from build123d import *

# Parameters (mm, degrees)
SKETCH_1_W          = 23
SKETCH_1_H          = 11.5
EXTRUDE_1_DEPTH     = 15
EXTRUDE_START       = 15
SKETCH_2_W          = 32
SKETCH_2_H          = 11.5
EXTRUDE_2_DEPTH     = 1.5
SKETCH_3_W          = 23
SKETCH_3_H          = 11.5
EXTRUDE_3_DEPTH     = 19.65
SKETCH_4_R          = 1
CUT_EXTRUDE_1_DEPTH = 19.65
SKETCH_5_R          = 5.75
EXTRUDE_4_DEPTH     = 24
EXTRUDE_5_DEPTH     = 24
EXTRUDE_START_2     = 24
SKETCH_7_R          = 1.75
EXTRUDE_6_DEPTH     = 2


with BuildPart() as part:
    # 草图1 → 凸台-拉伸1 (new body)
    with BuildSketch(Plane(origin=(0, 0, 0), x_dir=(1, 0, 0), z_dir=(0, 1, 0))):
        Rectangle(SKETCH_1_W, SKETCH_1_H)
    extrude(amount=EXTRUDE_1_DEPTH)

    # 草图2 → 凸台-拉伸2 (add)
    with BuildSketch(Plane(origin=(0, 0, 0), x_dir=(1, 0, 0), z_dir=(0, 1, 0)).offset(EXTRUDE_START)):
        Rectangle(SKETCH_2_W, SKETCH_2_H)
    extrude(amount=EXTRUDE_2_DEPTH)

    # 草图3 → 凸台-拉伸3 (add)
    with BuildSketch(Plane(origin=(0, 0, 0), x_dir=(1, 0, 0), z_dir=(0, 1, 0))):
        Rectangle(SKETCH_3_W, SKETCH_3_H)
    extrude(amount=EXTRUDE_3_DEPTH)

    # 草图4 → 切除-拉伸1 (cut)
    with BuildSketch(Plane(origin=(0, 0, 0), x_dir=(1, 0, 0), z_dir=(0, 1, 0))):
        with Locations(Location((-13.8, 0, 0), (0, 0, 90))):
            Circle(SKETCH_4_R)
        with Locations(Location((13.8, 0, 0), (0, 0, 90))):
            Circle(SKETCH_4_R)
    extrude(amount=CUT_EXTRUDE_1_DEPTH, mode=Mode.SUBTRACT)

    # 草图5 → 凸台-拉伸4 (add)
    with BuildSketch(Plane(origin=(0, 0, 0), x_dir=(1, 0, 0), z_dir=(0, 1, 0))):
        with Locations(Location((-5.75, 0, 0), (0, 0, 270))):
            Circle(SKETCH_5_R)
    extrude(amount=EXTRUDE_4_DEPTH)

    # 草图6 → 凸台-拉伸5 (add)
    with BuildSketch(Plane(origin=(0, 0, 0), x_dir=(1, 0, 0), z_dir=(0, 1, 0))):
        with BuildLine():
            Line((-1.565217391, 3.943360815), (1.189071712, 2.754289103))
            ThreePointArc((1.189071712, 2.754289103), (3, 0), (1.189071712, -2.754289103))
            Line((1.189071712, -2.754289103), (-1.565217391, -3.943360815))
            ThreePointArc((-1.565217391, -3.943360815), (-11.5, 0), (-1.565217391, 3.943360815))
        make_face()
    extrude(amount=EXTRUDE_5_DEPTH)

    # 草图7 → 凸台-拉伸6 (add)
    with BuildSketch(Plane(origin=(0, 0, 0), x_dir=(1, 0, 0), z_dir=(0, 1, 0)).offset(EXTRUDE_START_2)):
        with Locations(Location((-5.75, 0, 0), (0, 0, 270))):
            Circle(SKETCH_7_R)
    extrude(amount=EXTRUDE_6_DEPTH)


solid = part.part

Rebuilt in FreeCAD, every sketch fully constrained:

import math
import FreeCAD as App
import Part
import Sketcher
from FreeCAD import Vector

doc = App.newDocument("Part")
body = doc.addObject("PartDesign::Body", "Body")

# Sketch on XZ plane
sketch1 = body.newObject("Sketcher::SketchObject", "Sketch")
sketch1.AttachmentSupport = (doc.getObject("XZ_Plane"), [""])
sketch1.MapMode = "FlatFace"
sketch1.addGeometry([
    Part.LineSegment(Vector(-11.5, -5.75, 0), Vector(-11.5, 5.75, 0)),
    Part.LineSegment(Vector(-11.5, 5.75, 0), Vector(11.5, 5.75, 0)),
    Part.LineSegment(Vector(11.5, 5.75, 0), Vector(11.5, -5.75, 0)),
    Part.LineSegment(Vector(11.5, -5.75, 0), Vector(-11.5, -5.75, 0)),
], False)
sketch1.addConstraint([
    Sketcher.Constraint("Coincident", 0, 2, 1, 1),
    Sketcher.Constraint("Coincident", 1, 2, 2, 1),
    Sketcher.Constraint("Coincident", 2, 2, 3, 1),
    Sketcher.Constraint("Coincident", 3, 2, 0, 1),
    Sketcher.Constraint("Vertical", 0),
    Sketcher.Constraint("Horizontal", 1),
    Sketcher.Constraint("Vertical", 2),
    Sketcher.Constraint("Horizontal", 3),
    Sketcher.Constraint("Symmetric", 0, 2, 2, 2, -1, 1),
    Sketcher.Constraint("DistanceX", 1, 1, 1, 2, 23.0),
    Sketcher.Constraint("DistanceY", 0, 1, 0, 2, 11.5),
])
pad1 = body.newObject("PartDesign::Pad", "Pad")
pad1.Profile = sketch1
pad1.Length = 15
pad1.Reversed = True

# Sketch on XZ plane
sketch2 = body.newObject("Sketcher::SketchObject", "Sketch001")
sketch2.AttachmentSupport = (doc.getObject("XZ_Plane"), [""])
sketch2.MapMode = "FlatFace"
sketch2.AttachmentOffset = App.Placement(Vector(0, 0, -15), App.Rotation())
sketch2.addGeometry([
    Part.LineSegment(Vector(-16, -5.75, 0), Vector(-16, 5.75, 0)),
    Part.LineSegment(Vector(-16, 5.75, 0), Vector(16, 5.75, 0)),
    Part.LineSegment(Vector(16, 5.75, 0), Vector(16, -5.75, 0)),
    Part.LineSegment(Vector(16, -5.75, 0), Vector(-16, -5.75, 0)),
], False)
sketch2.addConstraint([
    Sketcher.Constraint("Coincident", 0, 2, 1, 1),
    Sketcher.Constraint("Coincident", 1, 2, 2, 1),
    Sketcher.Constraint("Coincident", 2, 2, 3, 1),
    Sketcher.Constraint("Coincident", 3, 2, 0, 1),
    Sketcher.Constraint("Vertical", 0),
    Sketcher.Constraint("Horizontal", 1),
    Sketcher.Constraint("Vertical", 2),
    Sketcher.Constraint("Horizontal", 3),
    Sketcher.Constraint("Symmetric", 0, 2, 2, 2, -1, 1),
    Sketcher.Constraint("DistanceX", 1, 1, 1, 2, 32.0),
    Sketcher.Constraint("DistanceY", 0, 1, 0, 2, 11.5),
])
pad2 = body.newObject("PartDesign::Pad", "Pad001")
pad2.Profile = sketch2
pad2.Length = 1.5
pad2.Reversed = True

# Sketch on XZ plane
sketch3 = body.newObject("Sketcher::SketchObject", "Sketch002")
sketch3.AttachmentSupport = (doc.getObject("XZ_Plane"), [""])
sketch3.MapMode = "FlatFace"
sketch3.addGeometry([
    Part.LineSegment(Vector(-11.5, -5.75, 0), Vector(-11.5, 5.75, 0)),
    Part.LineSegment(Vector(-11.5, 5.75, 0), Vector(11.5, 5.75, 0)),
    Part.LineSegment(Vector(11.5, 5.75, 0), Vector(11.5, -5.75, 0)),
    Part.LineSegment(Vector(11.5, -5.75, 0), Vector(-11.5, -5.75, 0)),
], False)
sketch3.addConstraint([
    Sketcher.Constraint("Coincident", 0, 2, 1, 1),
    Sketcher.Constraint("Coincident", 1, 2, 2, 1),
    Sketcher.Constraint("Coincident", 2, 2, 3, 1),
    Sketcher.Constraint("Coincident", 3, 2, 0, 1),
    Sketcher.Constraint("Vertical", 0),
    Sketcher.Constraint("Horizontal", 1),
    Sketcher.Constraint("Vertical", 2),
    Sketcher.Constraint("Horizontal", 3),
    Sketcher.Constraint("Symmetric", 0, 2, 2, 2, -1, 1),
    Sketcher.Constraint("DistanceX", 1, 1, 1, 2, 23.0),
    Sketcher.Constraint("DistanceY", 0, 1, 0, 2, 11.5),
])
pad3 = body.newObject("PartDesign::Pad", "Pad002")
pad3.Profile = sketch3
pad3.Length = 19.65
pad3.Reversed = True

# Sketch on XZ plane
sketch4 = body.newObject("Sketcher::SketchObject", "Sketch003")
sketch4.AttachmentSupport = (doc.getObject("XZ_Plane"), [""])
sketch4.MapMode = "FlatFace"
sketch4.addGeometry([
    Part.Circle(Vector(-13.8, 0, 0), Vector(0, 0, 1), 1),
    Part.Circle(Vector(13.8, 0, 0), Vector(0, 0, 1), 1),
], False)
sketch4.addConstraint([
    Sketcher.Constraint("Equal", 0, 1),
    Sketcher.Constraint("Symmetric", 0, 3, 1, 3, -1, 1),
    Sketcher.Constraint("PointOnObject", 0, 3, -1),
    Sketcher.Constraint("Diameter", 0, 2.0),
    Sketcher.Constraint("DistanceX", 0, 3, -1, 1, 13.8),
])
pocket1 = body.newObject("PartDesign::Pocket", "Pocket")
pocket1.Profile = sketch4
pocket1.Length = 19.65

# Sketch on XZ plane
sketch5 = body.newObject("Sketcher::SketchObject", "Sketch004")
sketch5.AttachmentSupport = (doc.getObject("XZ_Plane"), [""])
sketch5.MapMode = "FlatFace"
sketch5.addGeometry(Part.Circle(Vector(-5.75, 0, 0), Vector(0, 0, 1), 5.75), False)
sketch5.addConstraint([
    Sketcher.Constraint("PointOnObject", 0, 3, -1),
    Sketcher.Constraint("Diameter", 0, 11.5),
    Sketcher.Constraint("DistanceX", 0, 3, -1, 1, 5.75),
])
pad4 = body.newObject("PartDesign::Pad", "Pad003")
pad4.Profile = sketch5
pad4.Length = 24
pad4.Reversed = True

# Sketch on XZ plane
sketch6 = body.newObject("Sketcher::SketchObject", "Sketch005")
sketch6.AttachmentSupport = (doc.getObject("XZ_Plane"), [""])
sketch6.MapMode = "FlatFace"
sketch6.addGeometry([
    Part.LineSegment(Vector(1.189072, -2.754289, 0), Vector(-1.565217, -3.943361, 0)),
    Part.ArcOfCircle(Part.Circle(Vector(-5.75, 0, 0), Vector(0, 0, 1), 5.75), math.radians(43.298703), math.radians(316.701297)),
    Part.LineSegment(Vector(-1.565217, 3.943361, 0), Vector(1.189072, 2.754289, 0)),
    Part.ArcOfCircle(Part.Circle(Vector(0, 0, 0), Vector(0, 0, 1), 3), math.radians(-66.649352), math.radians(66.649352)),
], False)
sketch6.addConstraint([
    Sketcher.Constraint("Coincident", 0, 2, 1, 2),
    Sketcher.Constraint("Coincident", 1, 1, 2, 1),
    Sketcher.Constraint("Tangent", 2, 2, 3, 2),
    Sketcher.Constraint("Tangent", 3, 1, 0, 1),
    Sketcher.Constraint("Coincident", 3, 3, -1, 1),
    Sketcher.Constraint("Symmetric", 0, 2, 1, 1, -1),
    Sketcher.Constraint("Radius", 3, 3.0),
    Sketcher.Constraint("Radius", 1, 5.75),
    Sketcher.Constraint("Distance", 0, 3.0),
    Sketcher.Constraint("DistanceX", 1, 3, -1, 1, 5.75),
])
pad5 = body.newObject("PartDesign::Pad", "Pad004")
pad5.Profile = sketch6
pad5.Length = 24
pad5.Reversed = True

# Sketch on XZ plane
sketch7 = body.newObject("Sketcher::SketchObject", "Sketch006")
sketch7.AttachmentSupport = (doc.getObject("XZ_Plane"), [""])
sketch7.MapMode = "FlatFace"
sketch7.AttachmentOffset = App.Placement(Vector(0, 0, -24), App.Rotation())
sketch7.addGeometry(Part.Circle(Vector(-5.75, 0, 0), Vector(0, 0, 1), 1.75), False)
sketch7.addConstraint([
    Sketcher.Constraint("PointOnObject", 0, 3, -1),
    Sketcher.Constraint("Diameter", 0, 3.5),
    Sketcher.Constraint("DistanceX", 0, 3, -1, 1, 5.75),
])
pad6 = body.newObject("PartDesign::Pad", "Pad005")
pad6.Profile = sketch7
pad6.Length = 2
pad6.Reversed = True

doc.recompute()
